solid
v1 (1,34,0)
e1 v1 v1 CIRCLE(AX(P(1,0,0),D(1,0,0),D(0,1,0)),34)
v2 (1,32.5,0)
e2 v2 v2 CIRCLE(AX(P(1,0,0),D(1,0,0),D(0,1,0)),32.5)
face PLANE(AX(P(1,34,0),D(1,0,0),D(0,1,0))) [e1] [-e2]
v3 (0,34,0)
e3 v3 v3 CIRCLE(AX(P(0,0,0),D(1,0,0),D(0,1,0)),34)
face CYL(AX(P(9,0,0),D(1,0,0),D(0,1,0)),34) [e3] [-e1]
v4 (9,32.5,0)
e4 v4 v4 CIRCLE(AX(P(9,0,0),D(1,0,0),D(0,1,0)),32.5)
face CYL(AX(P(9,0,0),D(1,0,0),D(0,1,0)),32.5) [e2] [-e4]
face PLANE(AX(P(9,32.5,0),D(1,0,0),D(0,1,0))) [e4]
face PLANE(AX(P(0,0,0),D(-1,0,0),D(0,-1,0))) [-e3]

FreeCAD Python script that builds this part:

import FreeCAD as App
import Part
import Sketcher
from FreeCAD import Vector


def add_polygon(sketch, points):
    """Adds a closed chain of lines whose ends are joined by coincident constraints."""
    first, n = sketch.GeometryCount, len(points)
    for a, b in zip(points, points[1:] + points[:1]):
        sketch.addGeometry(Part.LineSegment(App.Vector(*a, 0), App.Vector(*b, 0)), False)
    for i in range(n):
        sketch.addConstraint(Sketcher.Constraint("Coincident", first + i, 2, first + (i + 1) % n, 1))

doc = App.newDocument("Part")
params = doc.addObject("Spreadsheet::Sheet", "Params")
for row, (alias, value) in enumerate([
    ("sketch1_width", "9 mm"),
    ("sketch1_width2", "8 mm"),
    ("sketch1_height", "34 mm"),
    ("sketch1_height2", "32.5 mm"),
    ("revolution_angle", "360 deg"),
], start=1):
    params.set(f"A{row}", alias)
    params.set(f"B{row}", "=" + value)
    params.setAlias(f"B{row}", alias)

body = doc.addObject("PartDesign::Body", "Body")

# Sketch on XY plane
sketch1 = body.newObject("Sketcher::SketchObject", "Sketch")
sketch1.AttachmentSupport = (doc.getObject("XY_Plane"), [""])
sketch1.MapMode = "FlatFace"
add_polygon(sketch1, [(0, 34), (0, 0), (9, 0), (9, 32.5), (1, 32.5), (1, 34)])  # lines 0-5
sketch1.addConstraint(Sketcher.Constraint("Vertical", 0))
sketch1.addConstraint(Sketcher.Constraint("Horizontal", 1))
sketch1.addConstraint(Sketcher.Constraint("Vertical", 2))
sketch1.addConstraint(Sketcher.Constraint("Horizontal", 3))
sketch1.addConstraint(Sketcher.Constraint("Vertical", 4))
sketch1.addConstraint(Sketcher.Constraint("Horizontal", 5))
sketch1.addConstraint(Sketcher.Constraint("Coincident", 0, 2, -1, 1))
sketch1.addConstraint(Sketcher.Constraint("DistanceX", 1, 1, 1, 2, 9.0))
sketch1.addConstraint(Sketcher.Constraint("DistanceX", 3, 2, 3, 1, 8.0))
sketch1.addConstraint(Sketcher.Constraint("DistanceY", 0, 2, 0, 1, 34.0))
sketch1.addConstraint(Sketcher.Constraint("DistanceY", 2, 1, 2, 2, 32.5))
sketch1.setExpression("Constraints[13]", "Params.sketch1_width")
sketch1.setExpression("Constraints[14]", "Params.sketch1_width2")
sketch1.setExpression("Constraints[15]", "Params.sketch1_height")
sketch1.setExpression("Constraints[16]", "Params.sketch1_height2")
revolution = body.newObject("PartDesign::Revolution", "Revolution")
revolution.Profile = sketch1
revolution.ReferenceAxis = (sketch1, ["H_Axis"])
revolution.setExpression("Angle", "Params.revolution_angle")

doc.recompute()
